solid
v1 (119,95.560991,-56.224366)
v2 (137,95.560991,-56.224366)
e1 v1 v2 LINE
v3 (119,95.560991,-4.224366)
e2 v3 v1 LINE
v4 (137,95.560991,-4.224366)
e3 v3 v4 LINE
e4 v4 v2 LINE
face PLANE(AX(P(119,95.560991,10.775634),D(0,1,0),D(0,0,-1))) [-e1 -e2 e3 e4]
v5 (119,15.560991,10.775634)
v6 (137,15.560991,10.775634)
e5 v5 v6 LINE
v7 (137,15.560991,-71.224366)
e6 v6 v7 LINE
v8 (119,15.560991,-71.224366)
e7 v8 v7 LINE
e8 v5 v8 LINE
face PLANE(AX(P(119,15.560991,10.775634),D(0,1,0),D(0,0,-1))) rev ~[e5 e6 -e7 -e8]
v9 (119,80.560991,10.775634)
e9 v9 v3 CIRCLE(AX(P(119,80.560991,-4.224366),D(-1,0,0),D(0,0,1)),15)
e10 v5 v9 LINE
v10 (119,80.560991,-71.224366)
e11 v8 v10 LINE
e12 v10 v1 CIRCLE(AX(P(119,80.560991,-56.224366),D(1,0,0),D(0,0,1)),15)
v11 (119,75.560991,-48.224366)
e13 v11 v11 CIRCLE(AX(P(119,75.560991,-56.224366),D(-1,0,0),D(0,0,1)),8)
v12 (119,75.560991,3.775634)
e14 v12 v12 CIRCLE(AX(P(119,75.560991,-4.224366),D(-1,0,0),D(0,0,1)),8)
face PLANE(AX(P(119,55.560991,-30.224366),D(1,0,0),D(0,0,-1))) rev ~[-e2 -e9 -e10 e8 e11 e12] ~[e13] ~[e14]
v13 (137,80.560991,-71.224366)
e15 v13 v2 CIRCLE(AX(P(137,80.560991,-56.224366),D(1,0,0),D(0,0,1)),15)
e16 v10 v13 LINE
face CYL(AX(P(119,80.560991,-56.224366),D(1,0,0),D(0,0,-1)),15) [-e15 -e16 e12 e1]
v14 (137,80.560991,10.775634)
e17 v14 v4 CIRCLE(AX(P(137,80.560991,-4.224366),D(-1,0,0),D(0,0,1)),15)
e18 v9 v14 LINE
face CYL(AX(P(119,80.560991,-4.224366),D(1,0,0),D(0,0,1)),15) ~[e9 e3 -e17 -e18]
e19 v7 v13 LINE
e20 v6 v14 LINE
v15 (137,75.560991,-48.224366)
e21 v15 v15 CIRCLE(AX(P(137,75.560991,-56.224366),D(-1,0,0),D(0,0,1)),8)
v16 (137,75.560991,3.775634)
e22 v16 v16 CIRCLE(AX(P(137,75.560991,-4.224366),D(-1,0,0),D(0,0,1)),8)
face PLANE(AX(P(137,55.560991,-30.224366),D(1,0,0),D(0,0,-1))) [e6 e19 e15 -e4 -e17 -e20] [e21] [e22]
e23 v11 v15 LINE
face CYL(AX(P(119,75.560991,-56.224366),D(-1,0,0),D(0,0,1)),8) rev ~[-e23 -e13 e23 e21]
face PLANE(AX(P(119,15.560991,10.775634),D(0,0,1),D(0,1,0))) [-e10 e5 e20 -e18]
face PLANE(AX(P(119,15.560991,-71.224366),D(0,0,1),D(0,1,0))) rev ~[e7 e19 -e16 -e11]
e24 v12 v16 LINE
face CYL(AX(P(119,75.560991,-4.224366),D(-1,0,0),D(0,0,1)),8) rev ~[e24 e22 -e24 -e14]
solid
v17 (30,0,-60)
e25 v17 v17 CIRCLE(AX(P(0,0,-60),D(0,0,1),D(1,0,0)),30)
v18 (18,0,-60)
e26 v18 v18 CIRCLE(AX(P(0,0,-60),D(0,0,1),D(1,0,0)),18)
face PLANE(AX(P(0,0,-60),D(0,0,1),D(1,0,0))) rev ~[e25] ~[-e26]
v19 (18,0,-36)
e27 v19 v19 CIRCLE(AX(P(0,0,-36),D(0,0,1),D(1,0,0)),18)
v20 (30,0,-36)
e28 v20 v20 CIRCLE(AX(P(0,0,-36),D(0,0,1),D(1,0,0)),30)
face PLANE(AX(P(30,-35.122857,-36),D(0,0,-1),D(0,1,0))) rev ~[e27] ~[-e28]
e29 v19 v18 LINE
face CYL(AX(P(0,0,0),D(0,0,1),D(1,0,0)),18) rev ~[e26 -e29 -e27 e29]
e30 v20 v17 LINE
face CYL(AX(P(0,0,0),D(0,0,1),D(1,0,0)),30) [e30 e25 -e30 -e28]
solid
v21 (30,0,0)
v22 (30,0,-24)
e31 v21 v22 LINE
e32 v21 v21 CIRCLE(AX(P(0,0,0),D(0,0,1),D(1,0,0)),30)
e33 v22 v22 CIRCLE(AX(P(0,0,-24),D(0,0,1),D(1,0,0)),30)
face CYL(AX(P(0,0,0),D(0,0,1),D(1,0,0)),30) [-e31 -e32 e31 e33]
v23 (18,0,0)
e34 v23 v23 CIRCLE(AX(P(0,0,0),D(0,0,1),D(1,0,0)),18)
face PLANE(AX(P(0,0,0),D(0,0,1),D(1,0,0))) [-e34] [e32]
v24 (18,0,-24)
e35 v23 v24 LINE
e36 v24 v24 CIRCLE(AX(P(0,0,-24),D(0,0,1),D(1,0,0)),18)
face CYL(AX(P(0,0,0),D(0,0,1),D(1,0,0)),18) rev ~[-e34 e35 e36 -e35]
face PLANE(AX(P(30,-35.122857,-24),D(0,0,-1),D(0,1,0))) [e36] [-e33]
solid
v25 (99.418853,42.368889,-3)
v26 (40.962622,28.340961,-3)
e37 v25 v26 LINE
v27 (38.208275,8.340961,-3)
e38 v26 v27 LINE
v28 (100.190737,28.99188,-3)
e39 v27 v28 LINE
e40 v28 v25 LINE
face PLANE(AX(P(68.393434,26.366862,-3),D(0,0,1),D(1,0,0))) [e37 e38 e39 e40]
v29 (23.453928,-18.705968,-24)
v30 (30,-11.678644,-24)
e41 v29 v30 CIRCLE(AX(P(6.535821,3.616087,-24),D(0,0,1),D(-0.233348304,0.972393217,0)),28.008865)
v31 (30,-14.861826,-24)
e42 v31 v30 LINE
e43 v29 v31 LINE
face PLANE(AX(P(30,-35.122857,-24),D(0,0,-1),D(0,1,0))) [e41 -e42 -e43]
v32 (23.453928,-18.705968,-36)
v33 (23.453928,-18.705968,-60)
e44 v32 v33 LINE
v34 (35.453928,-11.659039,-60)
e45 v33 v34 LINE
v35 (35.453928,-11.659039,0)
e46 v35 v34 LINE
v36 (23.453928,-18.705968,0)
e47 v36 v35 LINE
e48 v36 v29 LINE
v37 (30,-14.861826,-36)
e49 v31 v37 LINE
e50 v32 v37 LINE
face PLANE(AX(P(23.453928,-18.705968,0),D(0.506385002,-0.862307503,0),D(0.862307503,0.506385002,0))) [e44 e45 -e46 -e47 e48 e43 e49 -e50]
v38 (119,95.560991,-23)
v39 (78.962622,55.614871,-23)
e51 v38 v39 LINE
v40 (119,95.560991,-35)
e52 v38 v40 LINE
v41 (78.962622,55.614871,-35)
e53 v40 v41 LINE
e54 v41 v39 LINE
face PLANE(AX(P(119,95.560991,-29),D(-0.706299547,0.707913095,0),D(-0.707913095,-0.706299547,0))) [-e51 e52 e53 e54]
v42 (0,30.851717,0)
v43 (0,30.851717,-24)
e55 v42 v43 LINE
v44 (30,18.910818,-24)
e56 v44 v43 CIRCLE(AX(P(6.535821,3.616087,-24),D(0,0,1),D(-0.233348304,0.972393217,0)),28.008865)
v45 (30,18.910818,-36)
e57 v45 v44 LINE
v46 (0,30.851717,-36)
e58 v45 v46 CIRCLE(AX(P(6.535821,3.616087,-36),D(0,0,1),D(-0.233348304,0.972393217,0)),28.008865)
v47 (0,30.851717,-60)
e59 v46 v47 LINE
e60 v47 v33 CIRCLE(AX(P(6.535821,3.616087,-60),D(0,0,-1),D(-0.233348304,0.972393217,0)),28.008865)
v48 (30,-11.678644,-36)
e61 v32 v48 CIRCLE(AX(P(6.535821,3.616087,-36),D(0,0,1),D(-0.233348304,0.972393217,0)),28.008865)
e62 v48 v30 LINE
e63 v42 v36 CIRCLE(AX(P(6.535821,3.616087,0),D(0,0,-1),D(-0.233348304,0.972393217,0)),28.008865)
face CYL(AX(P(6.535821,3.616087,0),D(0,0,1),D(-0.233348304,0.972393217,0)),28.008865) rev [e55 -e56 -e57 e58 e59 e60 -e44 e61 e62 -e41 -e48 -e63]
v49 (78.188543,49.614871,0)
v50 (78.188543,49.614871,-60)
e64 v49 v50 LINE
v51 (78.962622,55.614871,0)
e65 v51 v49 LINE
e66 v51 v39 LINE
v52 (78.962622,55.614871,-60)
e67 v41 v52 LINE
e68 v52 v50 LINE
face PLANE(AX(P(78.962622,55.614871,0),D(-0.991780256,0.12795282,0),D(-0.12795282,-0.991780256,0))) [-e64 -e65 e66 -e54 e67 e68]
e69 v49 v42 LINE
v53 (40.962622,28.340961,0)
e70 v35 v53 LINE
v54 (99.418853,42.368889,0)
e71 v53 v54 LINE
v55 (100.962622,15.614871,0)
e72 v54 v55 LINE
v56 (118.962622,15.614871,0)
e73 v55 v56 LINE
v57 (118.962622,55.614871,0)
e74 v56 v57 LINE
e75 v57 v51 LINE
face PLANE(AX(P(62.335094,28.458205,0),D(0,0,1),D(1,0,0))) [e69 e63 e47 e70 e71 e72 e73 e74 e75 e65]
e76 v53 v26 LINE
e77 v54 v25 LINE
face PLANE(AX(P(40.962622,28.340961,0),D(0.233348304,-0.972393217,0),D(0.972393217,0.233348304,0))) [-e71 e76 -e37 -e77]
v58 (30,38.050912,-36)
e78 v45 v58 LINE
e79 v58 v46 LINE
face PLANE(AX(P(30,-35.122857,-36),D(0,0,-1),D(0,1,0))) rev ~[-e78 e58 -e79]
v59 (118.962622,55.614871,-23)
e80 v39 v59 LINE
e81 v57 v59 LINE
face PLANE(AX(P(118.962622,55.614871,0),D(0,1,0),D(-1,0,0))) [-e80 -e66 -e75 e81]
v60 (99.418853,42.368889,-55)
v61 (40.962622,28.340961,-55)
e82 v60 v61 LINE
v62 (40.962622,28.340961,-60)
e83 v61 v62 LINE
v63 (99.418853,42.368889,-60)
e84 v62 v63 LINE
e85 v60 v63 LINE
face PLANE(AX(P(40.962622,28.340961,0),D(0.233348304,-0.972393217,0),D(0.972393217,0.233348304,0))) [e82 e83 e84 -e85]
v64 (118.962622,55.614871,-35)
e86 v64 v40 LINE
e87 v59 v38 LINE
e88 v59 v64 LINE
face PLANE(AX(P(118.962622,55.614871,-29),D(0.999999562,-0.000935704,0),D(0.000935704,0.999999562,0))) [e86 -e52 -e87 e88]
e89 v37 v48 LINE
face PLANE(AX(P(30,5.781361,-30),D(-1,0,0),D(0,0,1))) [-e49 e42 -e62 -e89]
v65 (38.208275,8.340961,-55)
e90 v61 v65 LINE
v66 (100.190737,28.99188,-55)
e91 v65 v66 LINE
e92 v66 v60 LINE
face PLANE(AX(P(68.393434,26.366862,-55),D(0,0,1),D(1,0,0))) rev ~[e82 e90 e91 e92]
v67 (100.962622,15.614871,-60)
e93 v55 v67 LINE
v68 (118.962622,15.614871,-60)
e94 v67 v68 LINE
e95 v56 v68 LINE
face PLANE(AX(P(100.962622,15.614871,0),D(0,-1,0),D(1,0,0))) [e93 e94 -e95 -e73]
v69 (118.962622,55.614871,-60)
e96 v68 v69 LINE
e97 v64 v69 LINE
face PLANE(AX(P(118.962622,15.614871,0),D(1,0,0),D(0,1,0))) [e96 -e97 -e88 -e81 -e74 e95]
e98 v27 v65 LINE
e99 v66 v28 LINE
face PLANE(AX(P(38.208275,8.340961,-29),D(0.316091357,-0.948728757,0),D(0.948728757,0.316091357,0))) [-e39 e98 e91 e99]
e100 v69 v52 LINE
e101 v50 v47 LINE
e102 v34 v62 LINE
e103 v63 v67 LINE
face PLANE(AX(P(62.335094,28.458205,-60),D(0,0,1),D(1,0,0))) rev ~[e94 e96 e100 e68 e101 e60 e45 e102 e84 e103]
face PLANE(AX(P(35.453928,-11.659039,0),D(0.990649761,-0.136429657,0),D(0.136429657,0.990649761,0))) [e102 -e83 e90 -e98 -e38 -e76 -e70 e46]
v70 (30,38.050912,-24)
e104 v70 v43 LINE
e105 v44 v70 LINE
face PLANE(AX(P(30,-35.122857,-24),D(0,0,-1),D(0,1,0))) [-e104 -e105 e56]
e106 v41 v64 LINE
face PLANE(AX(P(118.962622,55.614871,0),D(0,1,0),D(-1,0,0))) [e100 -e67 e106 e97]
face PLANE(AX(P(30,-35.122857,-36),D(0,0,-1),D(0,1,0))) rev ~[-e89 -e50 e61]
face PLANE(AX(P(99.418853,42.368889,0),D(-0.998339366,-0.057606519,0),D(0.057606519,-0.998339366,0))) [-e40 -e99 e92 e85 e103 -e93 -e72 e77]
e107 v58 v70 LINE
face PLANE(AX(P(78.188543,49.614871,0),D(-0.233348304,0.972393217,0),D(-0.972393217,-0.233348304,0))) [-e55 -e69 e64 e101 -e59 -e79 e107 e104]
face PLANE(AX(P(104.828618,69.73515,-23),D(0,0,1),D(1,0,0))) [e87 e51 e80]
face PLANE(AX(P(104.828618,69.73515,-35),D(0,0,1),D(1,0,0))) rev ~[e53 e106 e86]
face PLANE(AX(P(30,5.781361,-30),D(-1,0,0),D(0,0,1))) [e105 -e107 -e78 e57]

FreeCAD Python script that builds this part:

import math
import FreeCAD as App
import Part
import Sketcher
Q = App.Units.Quantity


def edges_at(feature, points):
    """Names of the edges that pass closest to the given points."""
    edges = feature.Shape.Edges
    near = lambda p: min(range(len(edges)), key=lambda i: edges[i].distToShape(Part.Vertex(*p))[0])
    return sorted({f"Edge{near(p) + 1}" for p in points})


def add_polygon(sketch, points):
    """Adds a closed chain of lines whose ends are joined by coincident constraints."""
    first, n = sketch.GeometryCount, len(points)
    for a, b in zip(points, points[1:] + points[:1]):
        sketch.addGeometry(Part.LineSegment(App.Vector(*a, 0), App.Vector(*b, 0)), False)
    for i in range(n):
        sketch.addConstraint(Sketcher.Constraint("Coincident", first + i, 2, first + (i + 1) % n, 1))

doc = App.newDocument("Part")
params = doc.addObject("Spreadsheet::Sheet", "Params")
for row, (alias, value) in enumerate([
    ("sketch1_width", "18 mm"),
    ("sketch1_width2", "40 mm"),
    ("pad1_length", "60 mm"),
    ("sketch2_width", "40 mm"),
    ("pad2_length", "12 mm"),
    ("sketch3_diameter", "60 mm"),
    ("sketch3_diameter2", "36 mm"),
    ("pad3_length", "60 mm"),
    ("sketch4_width", "80 mm"),
    ("sketch4_height", "82 mm"),
    ("pad4_length", "18 mm"),
    ("fillet_radius", "15 mm"),
    ("sketch5_diameter", "16 mm"),
    ("pocket1_length", "32 mm"),
    ("sketch6_height", "12 mm"),
    ("pad5_length", "62 mm"),
    ("pad6_length", "52 mm"),
], start=1):
    params.set(f"A{row}", alias)
    params.set(f"B{row}", "=" + value)
    params.setAlias(f"B{row}", alias)

body = doc.addObject("PartDesign::Body", "Body")

sketch1 = body.newObject("Sketcher::SketchObject", "Sketch")
sketch1.AttachmentSupport = (doc.getObject("XY_Plane"), [""])
sketch1.MapMode = "FlatFace"
sketch1.addGeometry([
    Part.LineSegment(App.Vector(78.188543, 49.614871, 0), App.Vector(0, 30.851717, 0)),
    Part.ArcOfCircle(Part.Circle(App.Vector(6.535821, 3.616087, 0), App.Vector(0, 0, 1), 28.008865), math.radians(-52.84115), math.radians(103.494281)),
    Part.LineSegment(App.Vector(23.453928, -18.705968, 0), App.Vector(35.453928, -11.659039, 0)),
    Part.LineSegment(App.Vector(35.453928, -11.659039, 0), App.Vector(40.962622, 28.340961, 0)),
    Part.LineSegment(App.Vector(40.962622, 28.340961, 0), App.Vector(99.418853, 42.368889, 0)),
    Part.LineSegment(App.Vector(99.418853, 42.368889, 0), App.Vector(100.962622, 15.614871, 0)),
    Part.LineSegment(App.Vector(100.962622, 15.614871, 0), App.Vector(118.962622, 15.614871, 0)),
    Part.LineSegment(App.Vector(118.962622, 15.614871, 0), App.Vector(118.962622, 55.614871, 0)),
    Part.LineSegment(App.Vector(118.962622, 55.614871, 0), App.Vector(78.962622, 55.614871, 0)),
    Part.LineSegment(App.Vector(78.962622, 55.614871, 0), App.Vector(78.188543, 49.614871, 0)),
], False)
sketch1.addConstraint([
    Sketcher.Constraint("Tangent", 0, 2, 1, 2),
    Sketcher.Constraint("Coincident", 1, 1, 2, 1),
    Sketcher.Constraint("Coincident", 2, 2, 3, 1),
    Sketcher.Constraint("Coincident", 3, 2, 4, 1),
    Sketcher.Constraint("Coincident", 4, 2, 5, 1),
    Sketcher.Constraint("Coincident", 5, 2, 6, 1),
    Sketcher.Constraint("Coincident", 6, 2, 7, 1),
    Sketcher.Constraint("Coincident", 7, 2, 8, 1),
    Sketcher.Constraint("Coincident", 8, 2, 9, 1),
    Sketcher.Constraint("Coincident", 9, 2, 0, 1),
    Sketcher.Constraint("Horizontal", 6),
    Sketcher.Constraint("Vertical", 7),
    Sketcher.Constraint("Horizontal", 8),
    Sketcher.Constraint("PointOnObject", 0, 2, -2),
    Sketcher.Constraint("Parallel", 0, 4),
    Sketcher.Constraint("Equal", 8, 7),
    Sketcher.Constraint("DistanceX", 6, 1, 6, 2, Q("18 mm")),
    Sketcher.Constraint("DistanceX", 8, 2, 8, 1, Q("40 mm")),
    Sketcher.Constraint("DistanceX", 1, 1, 2, 2, Q("12 mm")),
    Sketcher.Constraint("DistanceY", 2, 2, 3, 2, Q("40 mm")),
    Sketcher.Constraint("DistanceX", 3, 2, 5, 2, Q("60 mm")),
    Sketcher.Constraint("DistanceY", 9, 2, 8, 2, Q("6 mm")),
    Sketcher.Constraint("Radius", 1, Q("28.008865 mm")),
    Sketcher.Constraint("DistanceX", 1, 3, 3, 2, Q("34.426801 mm")),
    Sketcher.Constraint("Distance", 0, Q("80.408359 mm")),
    Sketcher.Constraint("Distance", 2, Q("13.916149 mm")),
    Sketcher.Constraint("Distance", 3, Q("40.37754 mm")),
    Sketcher.Constraint("Distance", 5, Q("26.798521 mm")),
    Sketcher.Constraint("DistanceX", -1, 1, 1, 3, Q("6.535821 mm")),
    Sketcher.Constraint("DistanceY", 1, 1, -1, 1, Q("18.705968 mm")),
])
sketch1.setExpression("Constraints[16]", "Params.sketch1_width")
sketch1.setExpression("Constraints[17]", "Params.sketch1_width2")
pad1 = body.newObject("PartDesign::Pad", "Pad")
pad1.Profile = sketch1
pad1.setExpression("Length", "Params.pad1_length")
pad1.Reversed = True

sketch2 = body.newObject("Sketcher::SketchObject", "Sketch001")
sketch2.AttachmentSupport = (doc.getObject("XY_Plane"), [""])
sketch2.MapMode = "FlatFace"
sketch2.AttachmentOffset = App.Placement(App.Vector(0, 0, -29), App.Rotation())
add_polygon(sketch2, [(119, 95.560991), (78.962622, 55.614871), (118.962622, 55.614871)])
sketch2.addConstraint([
    Sketcher.Constraint("Horizontal", 1),
    Sketcher.Constraint("DistanceX", 1, 1, 1, 2, Q("40 mm")),
    Sketcher.Constraint("DistanceX", -1, 1, 2, 2, Q("119 mm")),
    Sketcher.Constraint("Distance", 0, Q("56.556911 mm")),
    Sketcher.Constraint("DistanceY", -1, 1, 0, 2, Q("55.614871 mm")),
    Sketcher.Constraint("DistanceY", -1, 1, 2, 2, Q("95.560991 mm")),
])
sketch2.setExpression("Constraints[4]", "Params.sketch2_width")
pad2 = body.newObject("PartDesign::Pad", "Pad001")
pad2.Profile = sketch2
pad2.setExpression("Length", "Params.pad2_length")
pad2.Midplane = True
body2 = doc.addObject("PartDesign::Body", "Body001")

sketch3 = body2.newObject("Sketcher::SketchObject", "Sketch002")
sketch3.AttachmentSupport = (doc.getObject("XY_Plane001"), [""])
sketch3.MapMode = "FlatFace"
sketch3.addGeometry([
    Part.Circle(App.Vector(0, 0, 0), App.Vector(0, 0, 1), 30),
    Part.Circle(App.Vector(0, 0, 0), App.Vector(0, 0, 1), 18),
], False)
sketch3.addConstraint([
    Sketcher.Constraint("Coincident", 0, 3, -1, 1),
    Sketcher.Constraint("Coincident", 1, 3, -1, 1),
    Sketcher.Constraint("Diameter", 0, Q("60 mm")),
    Sketcher.Constraint("Diameter", 1, Q("36 mm")),
])
sketch3.setExpression("Constraints[2]", "Params.sketch3_diameter")
sketch3.setExpression("Constraints[3]", "Params.sketch3_diameter2")
pad3 = body2.newObject("PartDesign::Pad", "Pad002")
pad3.Profile = sketch3
pad3.setExpression("Length", "Params.pad3_length")
pad3.Reversed = True
body3 = doc.addObject("PartDesign::Body", "Body002")

sketch4 = body3.newObject("Sketcher::SketchObject", "Sketch003")
sketch4.AttachmentSupport = (doc.getObject("YZ_Plane002"), [""])
sketch4.MapMode = "FlatFace"
sketch4.AttachmentOffset = App.Placement(App.Vector(0, 0, 119), App.Rotation())
add_polygon(sketch4, [(95.560991, 10.775634), (15.560991, 10.775634), (15.560991, -71.224366), (95.560991, -71.224366)])
sketch4.addConstraint([
    Sketcher.Constraint("Horizontal", 0),
    Sketcher.Constraint("Vertical", 1),
    Sketcher.Constraint("Horizontal", 2),
    Sketcher.Constraint("Vertical", 3),
    Sketcher.Constraint("DistanceX", 0, 2, 0, 1, Q("80 mm")),
    Sketcher.Constraint("DistanceY", 1, 2, 1, 1, Q("82 mm")),
    Sketcher.Constraint("DistanceX", -1, 1, 0, 2, Q("15.560991 mm")),
    Sketcher.Constraint("DistanceY", -1, 1, 0, 2, Q("10.775634 mm")),
])
sketch4.setExpression("Constraints[8]", "Params.sketch4_width")
sketch4.setExpression("Constraints[9]", "Params.sketch4_height")
pad4 = body3.newObject("PartDesign::Pad", "Pad003")
pad4.Profile = sketch4
pad4.setExpression("Length", "Params.pad4_length")
doc.recompute()

fillet = body3.newObject("PartDesign::Fillet", "Fillet")
fillet.Base = (pad4, edges_at(pad4, [(128, 95.561, 10.776), (128, 95.561, -71.224)]))
fillet.setExpression("Radius", "Params.fillet_radius")

sketch5 = body3.newObject("Sketcher::SketchObject", "Sketch004")
sketch5.AttachmentSupport = (doc.getObject("YZ_Plane002"), [""])
sketch5.MapMode = "FlatFace"
sketch5.AttachmentOffset = App.Placement(App.Vector(0, 0, 119), App.Rotation())
sketch5.addGeometry([
    Part.Circle(App.Vector(75.560991, -56.224366, 0), App.Vector(0, 0, 1), 8),
    Part.Circle(App.Vector(75.560991, -4.224366, 0), App.Vector(0, 0, 1), 8),
], False)
sketch5.addConstraint([
    Sketcher.Constraint("Equal", 0, 1),
    Sketcher.Constraint("Vertical", 0, 3, 1, 3),
    Sketcher.Constraint("Diameter", 0, Q("16 mm")),
    Sketcher.Constraint("DistanceY", 0, 3, 1, 3, Q("52 mm")),
    Sketcher.Constraint("DistanceX", -1, 1, 0, 3, Q("75.560991 mm")),
    Sketcher.Constraint("DistanceY", 0, 3, -1, 1, Q("56.224366 mm")),
])
sketch5.setExpression("Constraints[2]", "Params.sketch5_diameter")
pocket1 = body3.newObject("PartDesign::Pocket", "Pocket")
pocket1.Profile = sketch5
pocket1.setExpression("Length", "Params.pocket1_length")
pocket1.Reversed = True
body4 = doc.addObject("PartDesign::Body", "Body003")

sketch6 = body4.newObject("Sketcher::SketchObject", "Sketch005")
sketch6.AttachmentSupport = (doc.getObject("YZ_Plane003"), [""])
sketch6.MapMode = "FlatFace"
sketch6.AttachmentOffset = App.Placement(App.Vector(0, 0, 30), App.Rotation())
add_polygon(sketch6, [(46.68558, -36), (-35.122857, -36), (-35.122857, -24), (46.68558, -24)])
sketch6.addConstraint([
    Sketcher.Constraint("Horizontal", 0),
    Sketcher.Constraint("Vertical", 1),
    Sketcher.Constraint("Horizontal", 2),
    Sketcher.Constraint("Vertical", 3),
    Sketcher.Constraint("DistanceY", 1, 1, 1, 2, Q("12 mm")),
    Sketcher.Constraint("DistanceY", 0, 2, -1, 1, Q("36 mm")),
    Sketcher.Constraint("DistanceX", 0, 2, 0, 1, Q("81.808437 mm")),
    Sketcher.Constraint("DistanceX", -1, 1, 2, 2, Q("46.68558 mm")),
])
sketch6.setExpression("Constraints[8]", "Params.sketch6_height")
pad5 = body4.newObject("PartDesign::Pad", "Pad004")
pad5.Profile = sketch6
pad5.setExpression("Length", "Params.pad5_length")
pad5.Reversed = True
doc.recompute()

body5 = doc.addObject("PartDesign::Body", "Body004")
body5.BaseFeature = body4
boolean = body.newObject("PartDesign::Boolean", "Boolean")
boolean.Type = "Cut"
boolean.addObjects([body5])
doc.recompute()

sketch7 = body.newObject("Sketcher::SketchObject", "Sketch006")
sketch7.AttachmentSupport = (doc.getObject("XY_Plane"), [""])
sketch7.MapMode = "FlatFace"
sketch7.AttachmentOffset = App.Placement(App.Vector(0, 0, -29), App.Rotation())
add_polygon(sketch7, [(38.208275, 8.340961), (100.190737, 28.99188), (99.418853, 42.368889), (40.962622, 28.340961)])
sketch7.addConstraint([
    Sketcher.Constraint("DistanceY", 3, 2, 2, 2, Q("20 mm")),
    Sketcher.Constraint("Distance", 0, Q("65.332121 mm")),
    Sketcher.Constraint("Distance", 1, Q("13.399261 mm")),
    Sketcher.Constraint("Distance", 3, Q("20.18877 mm")),
    Sketcher.Constraint("DistanceY", -1, 1, 0, 2, Q("28.99188 mm")),
    Sketcher.Constraint("DistanceY", -1, 1, 1, 2, Q("42.368889 mm")),
    Sketcher.Constraint("DistanceY", -1, 1, 2, 2, Q("28.340961 mm")),
    Sketcher.Constraint("DistanceX", -1, 1, 0, 2, Q("100.190737 mm")),
])
pad6 = body.newObject("PartDesign::Pad", "Pad005")
pad6.Profile = sketch7
pad6.setExpression("Length", "Params.pad6_length")
pad6.Midplane = True
body2.AllowCompound = True
doc.recompute()

boolean2 = body2.newObject("PartDesign::Boolean", "Boolean001")
boolean2.Type = "Cut"
boolean2.addObjects([body4])

doc.recompute()
